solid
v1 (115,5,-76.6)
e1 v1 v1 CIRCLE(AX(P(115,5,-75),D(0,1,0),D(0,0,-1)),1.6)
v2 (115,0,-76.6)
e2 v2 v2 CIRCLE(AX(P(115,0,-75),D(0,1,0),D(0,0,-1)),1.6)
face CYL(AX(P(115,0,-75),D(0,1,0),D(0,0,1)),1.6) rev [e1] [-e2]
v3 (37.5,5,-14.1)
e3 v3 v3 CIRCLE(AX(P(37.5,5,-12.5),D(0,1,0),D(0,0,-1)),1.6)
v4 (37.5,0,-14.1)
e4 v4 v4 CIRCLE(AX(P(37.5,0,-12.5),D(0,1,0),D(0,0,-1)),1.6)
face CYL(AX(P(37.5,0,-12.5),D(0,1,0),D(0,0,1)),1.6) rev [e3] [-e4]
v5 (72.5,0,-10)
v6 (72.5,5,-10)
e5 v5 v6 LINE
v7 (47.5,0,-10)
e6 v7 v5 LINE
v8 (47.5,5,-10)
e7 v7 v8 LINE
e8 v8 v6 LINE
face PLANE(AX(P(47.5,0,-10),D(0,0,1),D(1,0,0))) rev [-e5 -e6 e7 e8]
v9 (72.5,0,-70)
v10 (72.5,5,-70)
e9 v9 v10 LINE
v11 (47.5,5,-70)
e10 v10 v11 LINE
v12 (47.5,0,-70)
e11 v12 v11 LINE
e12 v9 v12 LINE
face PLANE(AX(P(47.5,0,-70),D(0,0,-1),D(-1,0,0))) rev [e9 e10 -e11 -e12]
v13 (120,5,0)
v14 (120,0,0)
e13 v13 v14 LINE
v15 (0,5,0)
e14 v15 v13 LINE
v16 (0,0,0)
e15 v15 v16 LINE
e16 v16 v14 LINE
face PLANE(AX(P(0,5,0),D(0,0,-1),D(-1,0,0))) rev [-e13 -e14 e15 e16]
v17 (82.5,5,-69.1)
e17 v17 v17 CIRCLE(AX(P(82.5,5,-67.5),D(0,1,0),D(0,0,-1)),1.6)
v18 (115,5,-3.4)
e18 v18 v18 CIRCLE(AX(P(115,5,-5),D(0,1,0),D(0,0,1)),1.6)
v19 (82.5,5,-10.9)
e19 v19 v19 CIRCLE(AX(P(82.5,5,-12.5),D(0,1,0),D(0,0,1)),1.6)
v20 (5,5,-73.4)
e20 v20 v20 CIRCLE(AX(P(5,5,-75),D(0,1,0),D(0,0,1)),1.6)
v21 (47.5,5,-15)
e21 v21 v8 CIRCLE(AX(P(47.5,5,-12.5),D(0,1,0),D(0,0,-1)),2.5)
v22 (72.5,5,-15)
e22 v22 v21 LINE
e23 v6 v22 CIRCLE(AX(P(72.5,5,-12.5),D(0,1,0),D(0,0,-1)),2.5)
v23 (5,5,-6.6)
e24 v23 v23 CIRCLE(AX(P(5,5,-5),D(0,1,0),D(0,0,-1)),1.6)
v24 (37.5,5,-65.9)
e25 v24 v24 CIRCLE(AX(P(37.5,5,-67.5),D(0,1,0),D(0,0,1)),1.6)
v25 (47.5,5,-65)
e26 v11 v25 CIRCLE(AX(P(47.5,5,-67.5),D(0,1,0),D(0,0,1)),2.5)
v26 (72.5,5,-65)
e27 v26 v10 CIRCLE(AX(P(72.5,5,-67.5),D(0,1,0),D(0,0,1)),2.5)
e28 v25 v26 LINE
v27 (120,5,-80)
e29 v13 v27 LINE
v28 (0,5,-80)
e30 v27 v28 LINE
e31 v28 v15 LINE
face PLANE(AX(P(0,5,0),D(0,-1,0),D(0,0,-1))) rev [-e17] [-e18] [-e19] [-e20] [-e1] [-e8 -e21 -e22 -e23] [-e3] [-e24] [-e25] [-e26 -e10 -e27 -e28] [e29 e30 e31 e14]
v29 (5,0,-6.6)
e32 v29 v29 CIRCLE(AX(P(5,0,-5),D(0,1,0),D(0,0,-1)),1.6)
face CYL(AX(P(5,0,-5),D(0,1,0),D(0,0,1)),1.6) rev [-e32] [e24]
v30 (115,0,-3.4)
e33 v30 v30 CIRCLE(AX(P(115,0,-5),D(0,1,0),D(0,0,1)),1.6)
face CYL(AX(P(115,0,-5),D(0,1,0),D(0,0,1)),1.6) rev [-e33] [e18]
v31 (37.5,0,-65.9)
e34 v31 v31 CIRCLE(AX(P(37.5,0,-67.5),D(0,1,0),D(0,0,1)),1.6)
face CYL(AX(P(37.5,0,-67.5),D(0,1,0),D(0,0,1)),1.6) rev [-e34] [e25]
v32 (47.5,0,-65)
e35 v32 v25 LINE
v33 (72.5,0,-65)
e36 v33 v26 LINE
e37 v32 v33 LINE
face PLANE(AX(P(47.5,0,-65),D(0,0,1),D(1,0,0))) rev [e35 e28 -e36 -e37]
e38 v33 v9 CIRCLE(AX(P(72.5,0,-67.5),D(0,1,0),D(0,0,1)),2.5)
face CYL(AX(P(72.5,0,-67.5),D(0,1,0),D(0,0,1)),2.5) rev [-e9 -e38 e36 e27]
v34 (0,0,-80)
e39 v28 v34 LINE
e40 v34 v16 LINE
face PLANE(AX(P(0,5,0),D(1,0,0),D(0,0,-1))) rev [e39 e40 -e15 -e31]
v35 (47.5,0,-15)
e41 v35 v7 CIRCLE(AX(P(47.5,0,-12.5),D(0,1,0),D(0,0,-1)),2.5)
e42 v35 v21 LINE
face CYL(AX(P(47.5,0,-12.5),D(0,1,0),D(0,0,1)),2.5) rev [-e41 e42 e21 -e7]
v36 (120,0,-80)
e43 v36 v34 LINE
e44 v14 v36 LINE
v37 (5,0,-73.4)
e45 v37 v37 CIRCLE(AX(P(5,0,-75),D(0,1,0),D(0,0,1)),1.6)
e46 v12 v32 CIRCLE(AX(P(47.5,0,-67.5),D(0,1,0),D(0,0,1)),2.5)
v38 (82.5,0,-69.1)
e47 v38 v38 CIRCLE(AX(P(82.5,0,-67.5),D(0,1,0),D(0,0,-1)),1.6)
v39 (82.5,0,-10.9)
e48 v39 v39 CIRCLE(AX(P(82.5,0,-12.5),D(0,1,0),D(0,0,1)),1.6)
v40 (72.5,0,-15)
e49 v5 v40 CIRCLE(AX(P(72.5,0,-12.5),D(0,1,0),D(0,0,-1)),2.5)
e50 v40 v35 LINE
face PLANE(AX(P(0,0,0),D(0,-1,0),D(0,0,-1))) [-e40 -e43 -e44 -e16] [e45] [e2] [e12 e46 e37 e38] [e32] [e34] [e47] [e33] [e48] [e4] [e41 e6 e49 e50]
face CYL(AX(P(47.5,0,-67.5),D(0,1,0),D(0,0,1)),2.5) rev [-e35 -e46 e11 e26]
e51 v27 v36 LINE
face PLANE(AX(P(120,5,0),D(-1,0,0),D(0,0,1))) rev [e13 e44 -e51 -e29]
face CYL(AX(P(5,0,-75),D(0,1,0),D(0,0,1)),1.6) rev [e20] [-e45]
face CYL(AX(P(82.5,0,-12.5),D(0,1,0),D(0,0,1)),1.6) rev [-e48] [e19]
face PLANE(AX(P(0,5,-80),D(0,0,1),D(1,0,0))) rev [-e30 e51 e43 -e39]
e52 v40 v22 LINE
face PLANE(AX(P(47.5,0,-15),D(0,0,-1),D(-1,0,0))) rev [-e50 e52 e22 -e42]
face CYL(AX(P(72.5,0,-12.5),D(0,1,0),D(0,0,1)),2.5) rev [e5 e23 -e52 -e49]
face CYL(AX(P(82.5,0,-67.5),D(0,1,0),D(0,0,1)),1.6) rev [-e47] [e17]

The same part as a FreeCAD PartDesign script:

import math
import FreeCAD as App
import Part
import Sketcher

V = App.Vector
Q = App.Units.Quantity


def add_polygon(sketch, points):
    """Adds a closed chain of lines whose ends are joined by coincident constraints."""
    first, n = sketch.GeometryCount, len(points)
    for a, b in zip(points, points[1:] + points[:1]):
        sketch.addGeometry(Part.LineSegment(App.Vector(*a, 0), App.Vector(*b, 0)), False)
    for i in range(n):
        sketch.addConstraint(Sketcher.Constraint("Coincident", first + i, 2, first + (i + 1) % n, 1))

doc = App.newDocument("Part")
body = doc.addObject("PartDesign::Body", "Body")

# Sketch on XZ plane
sketch1 = doc.addObject("Sketcher::SketchObject", "Sketch")
body.addObject(sketch1)
sketch1.AttachmentSupport = (doc.XZ_Plane, [""])
sketch1.MapMode = "FlatFace"
add_polygon(sketch1, [(0, -80), (0, 0), (120, 0), (120, -80)])  # lines 0-3
sketch1.addConstraint([
    Sketcher.Constraint("Vertical", 0),
    Sketcher.Constraint("Horizontal", 1),
    Sketcher.Constraint("Vertical", 2),
    Sketcher.Constraint("Horizontal", 3),
    Sketcher.Constraint("Coincident", 0, 2, -1, 1),
    Sketcher.Constraint("DistanceX", 1, 1, 1, 2, Q("120 mm")),
    Sketcher.Constraint("DistanceY", 0, 1, 0, 2, Q("80 mm")),
])
pad1 = doc.addObject("PartDesign::Pad", "Pad")
body.addObject(pad1)
pad1.Profile = sketch1
pad1.Length = 5
pad1.Reversed = True

# Sketch on XZ plane
sketch2 = doc.addObject("Sketcher::SketchObject", "Sketch001")
body.addObject(sketch2)
sketch2.AttachmentSupport = (doc.XZ_Plane, [""])
sketch2.MapMode = "FlatFace"
sketch2.AttachmentOffset = App.Placement(V(0, 0, -5), App.Rotation())
sketch2.addGeometry([
    Part.Circle(V(37.5, -67.5, 0), V(0, 0, 1), 1.6),  # 0
    Part.Circle(V(82.5, -67.5, 0), V(0, 0, 1), 1.6),  # 1
    Part.Circle(V(82.5, -12.5, 0), V(0, 0, 1), 1.6),  # 2
    Part.Circle(V(37.5, -12.5, 0), V(0, 0, 1), 1.6),  # 3
    Part.Circle(V(5, -75, 0), V(0, 0, 1), 1.6),  # 4
    Part.Circle(V(115, -75, 0), V(0, 0, 1), 1.6),  # 5
    Part.Circle(V(115, -5, 0), V(0, 0, 1), 1.6),  # 6
    Part.Circle(V(5, -5, 0), V(0, 0, 1), 1.6),  # 7
    Part.LineSegment(V(72.5, -70, 0), V(47.5, -70, 0)),  # 8
    Part.ArcOfCircle(Part.Circle(V(47.5, -67.5, 0), V(0, 0, 1), 2.5), math.radians(90), math.radians(270)),  # 9
    Part.LineSegment(V(47.5, -65, 0), V(72.5, -65, 0)),  # 10
    Part.ArcOfCircle(Part.Circle(V(72.5, -67.5, 0), V(0, 0, 1), 2.5), math.radians(-90), math.radians(90)),  # 11
    Part.LineSegment(V(47.5, -10, 0), V(72.5, -10, 0)),  # 12
    Part.ArcOfCircle(Part.Circle(V(72.5, -12.5, 0), V(0, 0, 1), 2.5), math.radians(-90), math.radians(90)),  # 13
    Part.LineSegment(V(72.5, -15, 0), V(47.5, -15, 0)),  # 14
    Part.ArcOfCircle(Part.Circle(V(47.5, -12.5, 0), V(0, 0, 1), 2.5), math.radians(90), math.radians(270)),  # 15
], False)
sketch2.addConstraint([
    Sketcher.Constraint("Tangent", 8, 2, 9, 2),
    Sketcher.Constraint("Tangent", 9, 1, 10, 1),
    Sketcher.Constraint("Tangent", 10, 2, 11, 2),
    Sketcher.Constraint("Tangent", 11, 1, 8, 1),
    Sketcher.Constraint("Tangent", 12, 2, 13, 2),
    Sketcher.Constraint("Tangent", 13, 1, 14, 1),
    Sketcher.Constraint("Tangent", 14, 2, 15, 2),
    Sketcher.Constraint("Tangent", 15, 1, 12, 1),
    Sketcher.Constraint("Horizontal", 8),
    Sketcher.Constraint("Horizontal", 10),
    Sketcher.Constraint("Horizontal", 12),
    Sketcher.Constraint("Horizontal", 14),
    Sketcher.Constraint("Equal", 0, 1),
    Sketcher.Constraint("Equal", 1, 2),
    Sketcher.Constraint("Equal", 2, 3),
    Sketcher.Constraint("Equal", 3, 4),
    Sketcher.Constraint("Equal", 4, 5),
    Sketcher.Constraint("Equal", 5, 6),
    Sketcher.Constraint("Equal", 6, 7),
    Sketcher.Constraint("Equal", 11, 13),
    Sketcher.Constraint("Horizontal", 0, 3, 1, 3),
    Sketcher.Constraint("Horizontal", 2, 3, 3, 3),
    Sketcher.Constraint("Horizontal", 4, 3, 5, 3),
    Sketcher.Constraint("Horizontal", 6, 3, 7, 3),
    Sketcher.Constraint("Horizontal", 1, 3, 9, 3),
    Sketcher.Constraint("Horizontal", 3, 3, 13, 3),
    Sketcher.Constraint("Vertical", 1, 3, 2, 3),
    Sketcher.Constraint("Vertical", 0, 3, 3, 3),
    Sketcher.Constraint("Vertical", 5, 3, 6, 3),
    Sketcher.Constraint("Vertical", 4, 3, 7, 3),
    Sketcher.Constraint("Vertical", 11, 3, 13, 3),
    Sketcher.Constraint("Vertical", 9, 3, 15, 3),
    Sketcher.Constraint("Diameter", 0, Q("3.2 mm")),
    Sketcher.Constraint("Radius", 9, Q("2.5 mm")),
    Sketcher.Constraint("DistanceX", 8, 2, 8, 1, Q("25 mm")),
    Sketcher.Constraint("DistanceX", -1, 1, 4, 3, Q("5 mm")),
    Sketcher.Constraint("DistanceY", 4, 3, -1, 1, Q("75 mm")),
    Sketcher.Constraint("DistanceX", -1, 1, 5, 3, Q("115 mm")),
    Sketcher.Constraint("DistanceY", 6, 3, -1, 1, Q("5 mm")),
    Sketcher.Constraint("DistanceY", 8, 2, -1, 1, Q("70 mm")),
    Sketcher.Constraint("DistanceY", 12, 2, -1, 1, Q("10 mm")),
    Sketcher.Constraint("DistanceX", 0, 3, 1, 3, Q("45 mm")),
    Sketcher.Constraint("DistanceX", 0, 3, 9, 3, Q("10 mm")),
    Sketcher.Constraint("DistanceX", -1, 1, 0, 3, Q("37.5 mm")),
])
pocket1 = doc.addObject("PartDesign::Pocket", "Pocket")
body.addObject(pocket1)
pocket1.Profile = sketch2
pocket1.Type = "ThroughAll"
pocket1.Reversed = True

doc.recompute()
